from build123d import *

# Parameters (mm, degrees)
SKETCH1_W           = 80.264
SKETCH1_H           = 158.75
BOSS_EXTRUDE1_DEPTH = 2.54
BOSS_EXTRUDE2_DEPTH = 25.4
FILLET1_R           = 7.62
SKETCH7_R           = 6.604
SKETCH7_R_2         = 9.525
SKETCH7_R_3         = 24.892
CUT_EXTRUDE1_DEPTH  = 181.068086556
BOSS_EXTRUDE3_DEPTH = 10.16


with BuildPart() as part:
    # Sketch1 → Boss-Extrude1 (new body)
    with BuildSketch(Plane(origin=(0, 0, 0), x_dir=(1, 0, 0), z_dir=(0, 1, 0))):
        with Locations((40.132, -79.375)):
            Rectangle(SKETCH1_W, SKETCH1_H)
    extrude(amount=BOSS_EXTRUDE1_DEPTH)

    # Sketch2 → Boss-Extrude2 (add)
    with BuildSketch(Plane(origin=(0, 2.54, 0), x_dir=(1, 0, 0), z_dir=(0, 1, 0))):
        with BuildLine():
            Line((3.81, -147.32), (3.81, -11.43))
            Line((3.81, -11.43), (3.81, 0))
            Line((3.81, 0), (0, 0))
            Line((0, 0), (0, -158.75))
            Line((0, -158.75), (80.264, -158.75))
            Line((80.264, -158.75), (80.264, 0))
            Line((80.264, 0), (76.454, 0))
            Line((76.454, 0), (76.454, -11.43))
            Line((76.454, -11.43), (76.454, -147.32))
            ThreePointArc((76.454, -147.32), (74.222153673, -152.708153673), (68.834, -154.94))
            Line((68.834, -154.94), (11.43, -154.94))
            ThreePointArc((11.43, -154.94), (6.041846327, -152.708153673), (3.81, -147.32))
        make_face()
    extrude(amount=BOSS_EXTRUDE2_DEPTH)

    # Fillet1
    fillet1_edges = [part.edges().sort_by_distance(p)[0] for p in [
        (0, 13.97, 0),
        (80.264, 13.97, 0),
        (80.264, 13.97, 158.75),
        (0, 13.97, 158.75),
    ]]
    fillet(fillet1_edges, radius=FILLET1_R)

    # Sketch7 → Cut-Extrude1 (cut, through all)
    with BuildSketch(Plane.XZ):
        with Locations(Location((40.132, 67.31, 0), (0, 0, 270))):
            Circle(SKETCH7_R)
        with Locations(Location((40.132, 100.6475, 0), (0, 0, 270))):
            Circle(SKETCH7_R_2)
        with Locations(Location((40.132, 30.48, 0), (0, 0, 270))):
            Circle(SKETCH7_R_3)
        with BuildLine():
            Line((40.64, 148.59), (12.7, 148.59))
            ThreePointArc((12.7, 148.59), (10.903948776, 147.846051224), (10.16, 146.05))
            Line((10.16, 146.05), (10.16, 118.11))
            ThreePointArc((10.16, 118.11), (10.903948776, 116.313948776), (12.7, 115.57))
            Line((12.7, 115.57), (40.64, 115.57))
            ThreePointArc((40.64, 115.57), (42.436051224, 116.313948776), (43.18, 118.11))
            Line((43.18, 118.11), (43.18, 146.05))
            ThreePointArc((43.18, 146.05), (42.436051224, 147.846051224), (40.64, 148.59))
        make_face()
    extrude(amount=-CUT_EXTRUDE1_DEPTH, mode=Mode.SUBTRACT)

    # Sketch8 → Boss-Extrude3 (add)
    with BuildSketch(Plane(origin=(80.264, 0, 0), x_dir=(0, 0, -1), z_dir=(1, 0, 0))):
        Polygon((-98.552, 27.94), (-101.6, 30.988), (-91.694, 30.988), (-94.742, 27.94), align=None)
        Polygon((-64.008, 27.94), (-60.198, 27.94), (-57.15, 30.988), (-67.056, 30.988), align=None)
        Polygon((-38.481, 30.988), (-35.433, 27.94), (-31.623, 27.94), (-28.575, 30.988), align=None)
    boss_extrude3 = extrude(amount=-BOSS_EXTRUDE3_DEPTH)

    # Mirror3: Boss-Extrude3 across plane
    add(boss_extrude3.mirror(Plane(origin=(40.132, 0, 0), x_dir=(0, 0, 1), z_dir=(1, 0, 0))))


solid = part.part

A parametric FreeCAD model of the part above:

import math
import FreeCAD as App
import Part
import Sketcher

V = App.Vector
Q = App.Units.Quantity


def edges_at(feature, points):
    """Names of the edges that pass closest to the given points."""
    edges = feature.Shape.Edges
    near = lambda p: min(range(len(edges)), key=lambda i: edges[i].distToShape(Part.Vertex(*p))[0])
    return sorted({f"Edge{near(p) + 1}" for p in points})

doc = App.newDocument("Part")
body = doc.addObject("PartDesign::Body", "Body")

# Sketch on XZ plane
sketch1 = body.newObject("Sketcher::SketchObject", "Sketch")
sketch1.AttachmentSupport = (doc.getObject("XZ_Plane"), [""])
sketch1.MapMode = "FlatFace"
sketch1.addGeometry([
    Part.LineSegment(V(0, 0, 0), V(0, 159, 0)),
    Part.LineSegment(V(0, 159, 0), V(80, 159, 0)),
    Part.LineSegment(V(80, 159, 0), V(80, 0, 0)),
    Part.LineSegment(V(80, 0, 0), V(0, 0, 0)),
], False)
sketch1.addConstraint([
    Sketcher.Constraint("Coincident", 0, 2, 1, 1),
    Sketcher.Constraint("Coincident", 1, 2, 2, 1),
    Sketcher.Constraint("Coincident", 2, 2, 3, 1),
    Sketcher.Constraint("Coincident", 3, 2, 0, 1),
    Sketcher.Constraint("Vertical", 0),
    Sketcher.Constraint("Horizontal", 1),
    Sketcher.Constraint("Vertical", 2),
    Sketcher.Constraint("Horizontal", 3),
    Sketcher.Constraint("Coincident", 3, 2, -1, 1),
    Sketcher.Constraint("DistanceX", 1, 1, 1, 2, Q("3.16 in")),
    Sketcher.Constraint("DistanceY", 0, 1, 0, 2, Q("6.25 in")),
])
pad1 = body.newObject("PartDesign::Pad", "Pad")
pad1.Profile = sketch1
pad1.Length = Q("0.1 in")
pad1.Reversed = True

# Sketch on XZ plane
sketch2 = body.newObject("Sketcher::SketchObject", "Sketch001")
sketch2.AttachmentSupport = (doc.getObject("XZ_Plane"), [""])
sketch2.MapMode = "FlatFace"
sketch2.AttachmentOffset = App.Placement(V(0, 0, -0.1 * 25.4), App.Rotation())
sketch2.addGeometry([
    Part.LineSegment(V(3.8, 147.3, 0), V(3.8, 0, 0)),  # 0
    Part.LineSegment(V(3.8, 0, 0), V(0, 0, 0)),  # 1
    Part.LineSegment(V(0, 0, 0), V(0, 158.8, 0)),  # 2
    Part.LineSegment(V(0, 158.8, 0), V(80.3, 158.8, 0)),  # 3
    Part.LineSegment(V(80.3, 158.8, 0), V(80.3, 0, 0)),  # 4
    Part.LineSegment(V(80.3, 0, 0), V(76.5, 0, 0)),  # 5
    Part.LineSegment(V(76.5, 0, 0), V(76.5, 147.3, 0)),  # 6
    Part.ArcOfCircle(Part.Circle(V(68.8, 147.3, 0), V(0, 0, 1), 7.6), math.radians(0), math.radians(90)),  # 7
    Part.LineSegment(V(68.8, 154.9, 0), V(11.4, 154.9, 0)),  # 8
    Part.ArcOfCircle(Part.Circle(V(11.4, 147.3, 0), V(0, 0, 1), 7.6), math.radians(90), math.radians(180)),  # 9
], False)
sketch2.addConstraint([
    Sketcher.Constraint("Coincident", 0, 2, 1, 1),
    Sketcher.Constraint("Coincident", 1, 2, 2, 1),
    Sketcher.Constraint("Coincident", 2, 2, 3, 1),
    Sketcher.Constraint("Coincident", 3, 2, 4, 1),
    Sketcher.Constraint("Coincident", 4, 2, 5, 1),
    Sketcher.Constraint("Coincident", 5, 2, 6, 1),
    Sketcher.Constraint("Tangent", 6, 2, 7, 1),
    Sketcher.Constraint("Tangent", 7, 2, 8, 1),
    Sketcher.Constraint("Tangent", 8, 2, 9, 1),
    Sketcher.Constraint("Tangent", 9, 2, 0, 1),
    Sketcher.Constraint("Vertical", 0),
    Sketcher.Constraint("Horizontal", 1),
    Sketcher.Constraint("Vertical", 2),
    Sketcher.Constraint("Horizontal", 3),
    Sketcher.Constraint("Vertical", 4),
    Sketcher.Constraint("Horizontal", 5),
    Sketcher.Constraint("Vertical", 6),
    Sketcher.Constraint("Horizontal", 8),
    Sketcher.Constraint("Coincident", 1, 2, -1, 1),
    Sketcher.Constraint("Equal", 7, 9),
    Sketcher.Constraint("PointOnObject", 4, 2, -1),
    Sketcher.Constraint("Equal", 1, 5),
    Sketcher.Constraint("Radius", 7, Q("0.3 in")),
    Sketcher.Constraint("DistanceY", 0, 2, 0, 1, Q("5.8 in")),
    Sketcher.Constraint("DistanceX", 1, 2, 1, 1, Q("0.15 in")),
    Sketcher.Constraint("DistanceX", 3, 1, 3, 2, Q("3.16 in")),
    Sketcher.Constraint("DistanceY", 2, 1, 2, 2, Q("6.25 in")),
])
pad2 = body.newObject("PartDesign::Pad", "Pad001")
pad2.Profile = sketch2
pad2.Length = Q("1 in")
pad2.Reversed = True
doc.recompute()

fillet = body.newObject("PartDesign::Fillet", "Fillet")
fillet.Base = (pad2, edges_at(pad2, [
    (0, 13.97, 0),
    (80.264, 13.97, 0),
    (80.264, 13.97, 158.75),
    (0, 13.97, 158.75),
]))
fillet.Radius = Q("0.3 in")

# Sketch on XZ plane
sketch3 = body.newObject("Sketcher::SketchObject", "Sketch002")
sketch3.AttachmentSupport = (doc.getObject("XZ_Plane"), [""])
sketch3.MapMode = "FlatFace"
sketch3.addGeometry([
    Part.Circle(V(40.1, 67.3, 0), V(0, 0, 1), 6.6),  # 0
    Part.Circle(V(40.1, 100.6, 0), V(0, 0, 1), 9.5),  # 1
    Part.Circle(V(40.1, 30.5, 0), V(0, 0, 1), 24.9),  # 2
    Part.LineSegment(V(40.6, 148.6, 0), V(12.7, 148.6, 0)),  # 3
    Part.ArcOfCircle(Part.Circle(V(12.7, 146, 0), V(0, 0, 1), 2.5), math.radians(90), math.radians(180)),  # 4
    Part.LineSegment(V(10.2, 146.1, 0), V(10.2, 118.1, 0)),  # 5
    Part.ArcOfCircle(Part.Circle(V(12.7, 118.1, 0), V(0, 0, 1), 2.5), math.radians(-180), math.radians(-90)),  # 6
    Part.LineSegment(V(12.7, 115.6, 0), V(40.6, 115.6, 0)),  # 7
    Part.ArcOfCircle(Part.Circle(V(40.6, 118.1, 0), V(0, 0, 1), 2.5), math.radians(-90), math.radians(0)),  # 8
    Part.LineSegment(V(43.2, 118.1, 0), V(43.2, 146.1, 0)),  # 9
    Part.ArcOfCircle(Part.Circle(V(40.6, 146, 0), V(0, 0, 1), 2.5), math.radians(0), math.radians(90)),  # 10
], False)
sketch3.addConstraint([
    Sketcher.Constraint("Tangent", 3, 2, 4, 1),
    Sketcher.Constraint("Tangent", 4, 2, 5, 1),
    Sketcher.Constraint("Tangent", 5, 2, 6, 1),
    Sketcher.Constraint("Tangent", 6, 2, 7, 1),
    Sketcher.Constraint("Tangent", 7, 2, 8, 1),
    Sketcher.Constraint("Tangent", 8, 2, 9, 1),
    Sketcher.Constraint("Tangent", 9, 2, 10, 1),
    Sketcher.Constraint("Tangent", 10, 2, 3, 1),
    Sketcher.Constraint("Horizontal", 3),
    Sketcher.Constraint("Vertical", 5),
    Sketcher.Constraint("Horizontal", 7),
    Sketcher.Constraint("Vertical", 9),
    Sketcher.Constraint("Equal", 4, 6),
    Sketcher.Constraint("Equal", 6, 8),
    Sketcher.Constraint("Equal", 8, 10),
    Sketcher.Constraint("Vertical", 0, 3, 1, 3),
    Sketcher.Constraint("Vertical", 1, 3, 2, 3),
    Sketcher.Constraint("Equal", 7, 5),
    Sketcher.Constraint("Radius", 4, Q("0.1 in")),
    Sketcher.Constraint("Diameter", 0, Q("0.52 in")),
    Sketcher.Constraint("Diameter", 1, Q("0.75 in")),
    Sketcher.Constraint("Diameter", 2, Q("1.96 in")),
    Sketcher.Constraint("DistanceX", 3, 2, 3, 1, Q("1.1 in")),
    Sketcher.Constraint("DistanceY", 0, 3, 6, 3, Q("2 in")),
    Sketcher.Constraint("DistanceY", -1, 1, 2, 3, Q("1.2 in")),
    Sketcher.Constraint("DistanceX", -1, 1, 4, 3, Q("0.5 in")),
    Sketcher.Constraint("DistanceX", -1, 1, 0, 3, Q("1.58 in")),
    Sketcher.Constraint("DistanceY", -1, 1, 0, 3, Q("2.65 in")),
    Sketcher.Constraint("DistanceY", 0, 3, 1, 3, Q("1.3125 in")),
])
pocket1 = body.newObject("PartDesign::Pocket", "Pocket")
pocket1.Profile = sketch3
pocket1.Type = "ThroughAll"

# Sketch on YZ plane
sketch4 = body.newObject("Sketcher::SketchObject", "Sketch003")
sketch4.AttachmentSupport = (doc.getObject("YZ_Plane"), [""])
sketch4.MapMode = "FlatFace"
sketch4.AttachmentOffset = App.Placement(V(0, 0, 3.16 * 25.4), App.Rotation())
sketch4.addGeometry([
    Part.LineSegment(V(31, 101.6, 0), V(27.9, 98.6, 0)),  # 0
    Part.LineSegment(V(27.9, 98.6, 0), V(27.9, 94.7, 0)),  # 1
    Part.LineSegment(V(27.9, 94.7, 0), V(31, 91.7, 0)),  # 2
    Part.LineSegment(V(31, 91.7, 0), V(31, 101.6, 0)),  # 3
    Part.LineSegment(V(27.9, 64, 0), V(27.9, 60.2, 0)),  # 4
    Part.LineSegment(V(27.9, 60.2, 0), V(31, 57.1, 0)),  # 5
    Part.LineSegment(V(31, 57.1, 0), V(31, 67.1, 0)),  # 6
    Part.LineSegment(V(31, 67.1, 0), V(27.9, 64, 0)),  # 7
    Part.LineSegment(V(31, 38.5, 0), V(27.9, 35.4, 0)),  # 8
    Part.LineSegment(V(27.9, 35.4, 0), V(27.9, 31.6, 0)),  # 9
    Part.LineSegment(V(27.9, 31.6, 0), V(31, 28.6, 0)),  # 10
    Part.LineSegment(V(31, 28.6, 0), V(31, 38.5, 0)),  # 11
], False)
sketch4.addConstraint([
    Sketcher.Constraint("Coincident", 0, 2, 1, 1),
    Sketcher.Constraint("Coincident", 1, 2, 2, 1),
    Sketcher.Constraint("Coincident", 2, 2, 3, 1),
    Sketcher.Constraint("Coincident", 3, 2, 0, 1),
    Sketcher.Constraint("Coincident", 4, 2, 5, 1),
    Sketcher.Constraint("Coincident", 5, 2, 6, 1),
    Sketcher.Constraint("Coincident", 6, 2, 7, 1),
    Sketcher.Constraint("Coincident", 7, 2, 4, 1),
    Sketcher.Constraint("Coincident", 8, 2, 9, 1),
    Sketcher.Constraint("Coincident", 9, 2, 10, 1),
    Sketcher.Constraint("Coincident", 10, 2, 11, 1),
    Sketcher.Constraint("Coincident", 11, 2, 8, 1),
    Sketcher.Constraint("Vertical", 1),
    Sketcher.Constraint("Vertical", 3),
    Sketcher.Constraint("Vertical", 4),
    Sketcher.Constraint("Vertical", 6),
    Sketcher.Constraint("Vertical", 9),
    Sketcher.Constraint("Vertical", 11),
    Sketcher.Constraint("Perpendicular", 0, 2),
    Sketcher.Constraint("Parallel", 2, 5),
    Sketcher.Constraint("Perpendicular", 5, 7),
    Sketcher.Constraint("Parallel", 7, 8),
    Sketcher.Constraint("Perpendicular", 8, 10),
    Sketcher.Constraint("Vertical", 1, 2, 4, 2),
    Sketcher.Constraint("Vertical", 3, 2, 5, 2),
    Sketcher.Constraint("Vertical", 7, 2, 8, 2),
    Sketcher.Constraint("Vertical", 6, 2, 10, 2),
    Sketcher.Constraint("Equal", 1, 4),
    Sketcher.Constraint("Equal", 4, 9),
    Sketcher.Constraint("Equal", 0, 2),
    Sketcher.Constraint("DistanceY", -1, 1, 3, 2, Q("4 in")),
    Sketcher.Constraint("DistanceY", 1, 2, 1, 1, Q("0.15 in")),
    Sketcher.Constraint("DistanceY", 3, 1, 3, 2, Q("0.39 in")),
    Sketcher.Constraint("DistanceX", -1, 1, 0, 2, Q("1.1 in")),
    Sketcher.Constraint("DistanceY", -1, 1, 4, 2, Q("2.37 in")),
    Sketcher.Constraint("DistanceY", -1, 1, 8, 2, Q("1.395 in")),
])
pad3 = body.newObject("PartDesign::Pad", "Pad002")
pad3.Profile = sketch4
pad3.Length = Q("0.4 in")
pad3.Reversed = True
doc.recompute()

datumplane = body.newObject("PartDesign::Plane", "DatumPlane")
datumplane.AttachmentSupport = (doc.getObject("YZ_Plane"), [""])
datumplane.MapMode = "FlatFace"
datumplane.AttachmentOffset = App.Placement(V(0, 0, 1.58 * 25.4), App.Rotation())
mirrored = body.newObject("PartDesign::Mirrored", "Mirrored")
mirrored.Originals = [pad3]
mirrored.MirrorPlane = (datumplane, [""])
body.Tip = mirrored

doc.recompute()
